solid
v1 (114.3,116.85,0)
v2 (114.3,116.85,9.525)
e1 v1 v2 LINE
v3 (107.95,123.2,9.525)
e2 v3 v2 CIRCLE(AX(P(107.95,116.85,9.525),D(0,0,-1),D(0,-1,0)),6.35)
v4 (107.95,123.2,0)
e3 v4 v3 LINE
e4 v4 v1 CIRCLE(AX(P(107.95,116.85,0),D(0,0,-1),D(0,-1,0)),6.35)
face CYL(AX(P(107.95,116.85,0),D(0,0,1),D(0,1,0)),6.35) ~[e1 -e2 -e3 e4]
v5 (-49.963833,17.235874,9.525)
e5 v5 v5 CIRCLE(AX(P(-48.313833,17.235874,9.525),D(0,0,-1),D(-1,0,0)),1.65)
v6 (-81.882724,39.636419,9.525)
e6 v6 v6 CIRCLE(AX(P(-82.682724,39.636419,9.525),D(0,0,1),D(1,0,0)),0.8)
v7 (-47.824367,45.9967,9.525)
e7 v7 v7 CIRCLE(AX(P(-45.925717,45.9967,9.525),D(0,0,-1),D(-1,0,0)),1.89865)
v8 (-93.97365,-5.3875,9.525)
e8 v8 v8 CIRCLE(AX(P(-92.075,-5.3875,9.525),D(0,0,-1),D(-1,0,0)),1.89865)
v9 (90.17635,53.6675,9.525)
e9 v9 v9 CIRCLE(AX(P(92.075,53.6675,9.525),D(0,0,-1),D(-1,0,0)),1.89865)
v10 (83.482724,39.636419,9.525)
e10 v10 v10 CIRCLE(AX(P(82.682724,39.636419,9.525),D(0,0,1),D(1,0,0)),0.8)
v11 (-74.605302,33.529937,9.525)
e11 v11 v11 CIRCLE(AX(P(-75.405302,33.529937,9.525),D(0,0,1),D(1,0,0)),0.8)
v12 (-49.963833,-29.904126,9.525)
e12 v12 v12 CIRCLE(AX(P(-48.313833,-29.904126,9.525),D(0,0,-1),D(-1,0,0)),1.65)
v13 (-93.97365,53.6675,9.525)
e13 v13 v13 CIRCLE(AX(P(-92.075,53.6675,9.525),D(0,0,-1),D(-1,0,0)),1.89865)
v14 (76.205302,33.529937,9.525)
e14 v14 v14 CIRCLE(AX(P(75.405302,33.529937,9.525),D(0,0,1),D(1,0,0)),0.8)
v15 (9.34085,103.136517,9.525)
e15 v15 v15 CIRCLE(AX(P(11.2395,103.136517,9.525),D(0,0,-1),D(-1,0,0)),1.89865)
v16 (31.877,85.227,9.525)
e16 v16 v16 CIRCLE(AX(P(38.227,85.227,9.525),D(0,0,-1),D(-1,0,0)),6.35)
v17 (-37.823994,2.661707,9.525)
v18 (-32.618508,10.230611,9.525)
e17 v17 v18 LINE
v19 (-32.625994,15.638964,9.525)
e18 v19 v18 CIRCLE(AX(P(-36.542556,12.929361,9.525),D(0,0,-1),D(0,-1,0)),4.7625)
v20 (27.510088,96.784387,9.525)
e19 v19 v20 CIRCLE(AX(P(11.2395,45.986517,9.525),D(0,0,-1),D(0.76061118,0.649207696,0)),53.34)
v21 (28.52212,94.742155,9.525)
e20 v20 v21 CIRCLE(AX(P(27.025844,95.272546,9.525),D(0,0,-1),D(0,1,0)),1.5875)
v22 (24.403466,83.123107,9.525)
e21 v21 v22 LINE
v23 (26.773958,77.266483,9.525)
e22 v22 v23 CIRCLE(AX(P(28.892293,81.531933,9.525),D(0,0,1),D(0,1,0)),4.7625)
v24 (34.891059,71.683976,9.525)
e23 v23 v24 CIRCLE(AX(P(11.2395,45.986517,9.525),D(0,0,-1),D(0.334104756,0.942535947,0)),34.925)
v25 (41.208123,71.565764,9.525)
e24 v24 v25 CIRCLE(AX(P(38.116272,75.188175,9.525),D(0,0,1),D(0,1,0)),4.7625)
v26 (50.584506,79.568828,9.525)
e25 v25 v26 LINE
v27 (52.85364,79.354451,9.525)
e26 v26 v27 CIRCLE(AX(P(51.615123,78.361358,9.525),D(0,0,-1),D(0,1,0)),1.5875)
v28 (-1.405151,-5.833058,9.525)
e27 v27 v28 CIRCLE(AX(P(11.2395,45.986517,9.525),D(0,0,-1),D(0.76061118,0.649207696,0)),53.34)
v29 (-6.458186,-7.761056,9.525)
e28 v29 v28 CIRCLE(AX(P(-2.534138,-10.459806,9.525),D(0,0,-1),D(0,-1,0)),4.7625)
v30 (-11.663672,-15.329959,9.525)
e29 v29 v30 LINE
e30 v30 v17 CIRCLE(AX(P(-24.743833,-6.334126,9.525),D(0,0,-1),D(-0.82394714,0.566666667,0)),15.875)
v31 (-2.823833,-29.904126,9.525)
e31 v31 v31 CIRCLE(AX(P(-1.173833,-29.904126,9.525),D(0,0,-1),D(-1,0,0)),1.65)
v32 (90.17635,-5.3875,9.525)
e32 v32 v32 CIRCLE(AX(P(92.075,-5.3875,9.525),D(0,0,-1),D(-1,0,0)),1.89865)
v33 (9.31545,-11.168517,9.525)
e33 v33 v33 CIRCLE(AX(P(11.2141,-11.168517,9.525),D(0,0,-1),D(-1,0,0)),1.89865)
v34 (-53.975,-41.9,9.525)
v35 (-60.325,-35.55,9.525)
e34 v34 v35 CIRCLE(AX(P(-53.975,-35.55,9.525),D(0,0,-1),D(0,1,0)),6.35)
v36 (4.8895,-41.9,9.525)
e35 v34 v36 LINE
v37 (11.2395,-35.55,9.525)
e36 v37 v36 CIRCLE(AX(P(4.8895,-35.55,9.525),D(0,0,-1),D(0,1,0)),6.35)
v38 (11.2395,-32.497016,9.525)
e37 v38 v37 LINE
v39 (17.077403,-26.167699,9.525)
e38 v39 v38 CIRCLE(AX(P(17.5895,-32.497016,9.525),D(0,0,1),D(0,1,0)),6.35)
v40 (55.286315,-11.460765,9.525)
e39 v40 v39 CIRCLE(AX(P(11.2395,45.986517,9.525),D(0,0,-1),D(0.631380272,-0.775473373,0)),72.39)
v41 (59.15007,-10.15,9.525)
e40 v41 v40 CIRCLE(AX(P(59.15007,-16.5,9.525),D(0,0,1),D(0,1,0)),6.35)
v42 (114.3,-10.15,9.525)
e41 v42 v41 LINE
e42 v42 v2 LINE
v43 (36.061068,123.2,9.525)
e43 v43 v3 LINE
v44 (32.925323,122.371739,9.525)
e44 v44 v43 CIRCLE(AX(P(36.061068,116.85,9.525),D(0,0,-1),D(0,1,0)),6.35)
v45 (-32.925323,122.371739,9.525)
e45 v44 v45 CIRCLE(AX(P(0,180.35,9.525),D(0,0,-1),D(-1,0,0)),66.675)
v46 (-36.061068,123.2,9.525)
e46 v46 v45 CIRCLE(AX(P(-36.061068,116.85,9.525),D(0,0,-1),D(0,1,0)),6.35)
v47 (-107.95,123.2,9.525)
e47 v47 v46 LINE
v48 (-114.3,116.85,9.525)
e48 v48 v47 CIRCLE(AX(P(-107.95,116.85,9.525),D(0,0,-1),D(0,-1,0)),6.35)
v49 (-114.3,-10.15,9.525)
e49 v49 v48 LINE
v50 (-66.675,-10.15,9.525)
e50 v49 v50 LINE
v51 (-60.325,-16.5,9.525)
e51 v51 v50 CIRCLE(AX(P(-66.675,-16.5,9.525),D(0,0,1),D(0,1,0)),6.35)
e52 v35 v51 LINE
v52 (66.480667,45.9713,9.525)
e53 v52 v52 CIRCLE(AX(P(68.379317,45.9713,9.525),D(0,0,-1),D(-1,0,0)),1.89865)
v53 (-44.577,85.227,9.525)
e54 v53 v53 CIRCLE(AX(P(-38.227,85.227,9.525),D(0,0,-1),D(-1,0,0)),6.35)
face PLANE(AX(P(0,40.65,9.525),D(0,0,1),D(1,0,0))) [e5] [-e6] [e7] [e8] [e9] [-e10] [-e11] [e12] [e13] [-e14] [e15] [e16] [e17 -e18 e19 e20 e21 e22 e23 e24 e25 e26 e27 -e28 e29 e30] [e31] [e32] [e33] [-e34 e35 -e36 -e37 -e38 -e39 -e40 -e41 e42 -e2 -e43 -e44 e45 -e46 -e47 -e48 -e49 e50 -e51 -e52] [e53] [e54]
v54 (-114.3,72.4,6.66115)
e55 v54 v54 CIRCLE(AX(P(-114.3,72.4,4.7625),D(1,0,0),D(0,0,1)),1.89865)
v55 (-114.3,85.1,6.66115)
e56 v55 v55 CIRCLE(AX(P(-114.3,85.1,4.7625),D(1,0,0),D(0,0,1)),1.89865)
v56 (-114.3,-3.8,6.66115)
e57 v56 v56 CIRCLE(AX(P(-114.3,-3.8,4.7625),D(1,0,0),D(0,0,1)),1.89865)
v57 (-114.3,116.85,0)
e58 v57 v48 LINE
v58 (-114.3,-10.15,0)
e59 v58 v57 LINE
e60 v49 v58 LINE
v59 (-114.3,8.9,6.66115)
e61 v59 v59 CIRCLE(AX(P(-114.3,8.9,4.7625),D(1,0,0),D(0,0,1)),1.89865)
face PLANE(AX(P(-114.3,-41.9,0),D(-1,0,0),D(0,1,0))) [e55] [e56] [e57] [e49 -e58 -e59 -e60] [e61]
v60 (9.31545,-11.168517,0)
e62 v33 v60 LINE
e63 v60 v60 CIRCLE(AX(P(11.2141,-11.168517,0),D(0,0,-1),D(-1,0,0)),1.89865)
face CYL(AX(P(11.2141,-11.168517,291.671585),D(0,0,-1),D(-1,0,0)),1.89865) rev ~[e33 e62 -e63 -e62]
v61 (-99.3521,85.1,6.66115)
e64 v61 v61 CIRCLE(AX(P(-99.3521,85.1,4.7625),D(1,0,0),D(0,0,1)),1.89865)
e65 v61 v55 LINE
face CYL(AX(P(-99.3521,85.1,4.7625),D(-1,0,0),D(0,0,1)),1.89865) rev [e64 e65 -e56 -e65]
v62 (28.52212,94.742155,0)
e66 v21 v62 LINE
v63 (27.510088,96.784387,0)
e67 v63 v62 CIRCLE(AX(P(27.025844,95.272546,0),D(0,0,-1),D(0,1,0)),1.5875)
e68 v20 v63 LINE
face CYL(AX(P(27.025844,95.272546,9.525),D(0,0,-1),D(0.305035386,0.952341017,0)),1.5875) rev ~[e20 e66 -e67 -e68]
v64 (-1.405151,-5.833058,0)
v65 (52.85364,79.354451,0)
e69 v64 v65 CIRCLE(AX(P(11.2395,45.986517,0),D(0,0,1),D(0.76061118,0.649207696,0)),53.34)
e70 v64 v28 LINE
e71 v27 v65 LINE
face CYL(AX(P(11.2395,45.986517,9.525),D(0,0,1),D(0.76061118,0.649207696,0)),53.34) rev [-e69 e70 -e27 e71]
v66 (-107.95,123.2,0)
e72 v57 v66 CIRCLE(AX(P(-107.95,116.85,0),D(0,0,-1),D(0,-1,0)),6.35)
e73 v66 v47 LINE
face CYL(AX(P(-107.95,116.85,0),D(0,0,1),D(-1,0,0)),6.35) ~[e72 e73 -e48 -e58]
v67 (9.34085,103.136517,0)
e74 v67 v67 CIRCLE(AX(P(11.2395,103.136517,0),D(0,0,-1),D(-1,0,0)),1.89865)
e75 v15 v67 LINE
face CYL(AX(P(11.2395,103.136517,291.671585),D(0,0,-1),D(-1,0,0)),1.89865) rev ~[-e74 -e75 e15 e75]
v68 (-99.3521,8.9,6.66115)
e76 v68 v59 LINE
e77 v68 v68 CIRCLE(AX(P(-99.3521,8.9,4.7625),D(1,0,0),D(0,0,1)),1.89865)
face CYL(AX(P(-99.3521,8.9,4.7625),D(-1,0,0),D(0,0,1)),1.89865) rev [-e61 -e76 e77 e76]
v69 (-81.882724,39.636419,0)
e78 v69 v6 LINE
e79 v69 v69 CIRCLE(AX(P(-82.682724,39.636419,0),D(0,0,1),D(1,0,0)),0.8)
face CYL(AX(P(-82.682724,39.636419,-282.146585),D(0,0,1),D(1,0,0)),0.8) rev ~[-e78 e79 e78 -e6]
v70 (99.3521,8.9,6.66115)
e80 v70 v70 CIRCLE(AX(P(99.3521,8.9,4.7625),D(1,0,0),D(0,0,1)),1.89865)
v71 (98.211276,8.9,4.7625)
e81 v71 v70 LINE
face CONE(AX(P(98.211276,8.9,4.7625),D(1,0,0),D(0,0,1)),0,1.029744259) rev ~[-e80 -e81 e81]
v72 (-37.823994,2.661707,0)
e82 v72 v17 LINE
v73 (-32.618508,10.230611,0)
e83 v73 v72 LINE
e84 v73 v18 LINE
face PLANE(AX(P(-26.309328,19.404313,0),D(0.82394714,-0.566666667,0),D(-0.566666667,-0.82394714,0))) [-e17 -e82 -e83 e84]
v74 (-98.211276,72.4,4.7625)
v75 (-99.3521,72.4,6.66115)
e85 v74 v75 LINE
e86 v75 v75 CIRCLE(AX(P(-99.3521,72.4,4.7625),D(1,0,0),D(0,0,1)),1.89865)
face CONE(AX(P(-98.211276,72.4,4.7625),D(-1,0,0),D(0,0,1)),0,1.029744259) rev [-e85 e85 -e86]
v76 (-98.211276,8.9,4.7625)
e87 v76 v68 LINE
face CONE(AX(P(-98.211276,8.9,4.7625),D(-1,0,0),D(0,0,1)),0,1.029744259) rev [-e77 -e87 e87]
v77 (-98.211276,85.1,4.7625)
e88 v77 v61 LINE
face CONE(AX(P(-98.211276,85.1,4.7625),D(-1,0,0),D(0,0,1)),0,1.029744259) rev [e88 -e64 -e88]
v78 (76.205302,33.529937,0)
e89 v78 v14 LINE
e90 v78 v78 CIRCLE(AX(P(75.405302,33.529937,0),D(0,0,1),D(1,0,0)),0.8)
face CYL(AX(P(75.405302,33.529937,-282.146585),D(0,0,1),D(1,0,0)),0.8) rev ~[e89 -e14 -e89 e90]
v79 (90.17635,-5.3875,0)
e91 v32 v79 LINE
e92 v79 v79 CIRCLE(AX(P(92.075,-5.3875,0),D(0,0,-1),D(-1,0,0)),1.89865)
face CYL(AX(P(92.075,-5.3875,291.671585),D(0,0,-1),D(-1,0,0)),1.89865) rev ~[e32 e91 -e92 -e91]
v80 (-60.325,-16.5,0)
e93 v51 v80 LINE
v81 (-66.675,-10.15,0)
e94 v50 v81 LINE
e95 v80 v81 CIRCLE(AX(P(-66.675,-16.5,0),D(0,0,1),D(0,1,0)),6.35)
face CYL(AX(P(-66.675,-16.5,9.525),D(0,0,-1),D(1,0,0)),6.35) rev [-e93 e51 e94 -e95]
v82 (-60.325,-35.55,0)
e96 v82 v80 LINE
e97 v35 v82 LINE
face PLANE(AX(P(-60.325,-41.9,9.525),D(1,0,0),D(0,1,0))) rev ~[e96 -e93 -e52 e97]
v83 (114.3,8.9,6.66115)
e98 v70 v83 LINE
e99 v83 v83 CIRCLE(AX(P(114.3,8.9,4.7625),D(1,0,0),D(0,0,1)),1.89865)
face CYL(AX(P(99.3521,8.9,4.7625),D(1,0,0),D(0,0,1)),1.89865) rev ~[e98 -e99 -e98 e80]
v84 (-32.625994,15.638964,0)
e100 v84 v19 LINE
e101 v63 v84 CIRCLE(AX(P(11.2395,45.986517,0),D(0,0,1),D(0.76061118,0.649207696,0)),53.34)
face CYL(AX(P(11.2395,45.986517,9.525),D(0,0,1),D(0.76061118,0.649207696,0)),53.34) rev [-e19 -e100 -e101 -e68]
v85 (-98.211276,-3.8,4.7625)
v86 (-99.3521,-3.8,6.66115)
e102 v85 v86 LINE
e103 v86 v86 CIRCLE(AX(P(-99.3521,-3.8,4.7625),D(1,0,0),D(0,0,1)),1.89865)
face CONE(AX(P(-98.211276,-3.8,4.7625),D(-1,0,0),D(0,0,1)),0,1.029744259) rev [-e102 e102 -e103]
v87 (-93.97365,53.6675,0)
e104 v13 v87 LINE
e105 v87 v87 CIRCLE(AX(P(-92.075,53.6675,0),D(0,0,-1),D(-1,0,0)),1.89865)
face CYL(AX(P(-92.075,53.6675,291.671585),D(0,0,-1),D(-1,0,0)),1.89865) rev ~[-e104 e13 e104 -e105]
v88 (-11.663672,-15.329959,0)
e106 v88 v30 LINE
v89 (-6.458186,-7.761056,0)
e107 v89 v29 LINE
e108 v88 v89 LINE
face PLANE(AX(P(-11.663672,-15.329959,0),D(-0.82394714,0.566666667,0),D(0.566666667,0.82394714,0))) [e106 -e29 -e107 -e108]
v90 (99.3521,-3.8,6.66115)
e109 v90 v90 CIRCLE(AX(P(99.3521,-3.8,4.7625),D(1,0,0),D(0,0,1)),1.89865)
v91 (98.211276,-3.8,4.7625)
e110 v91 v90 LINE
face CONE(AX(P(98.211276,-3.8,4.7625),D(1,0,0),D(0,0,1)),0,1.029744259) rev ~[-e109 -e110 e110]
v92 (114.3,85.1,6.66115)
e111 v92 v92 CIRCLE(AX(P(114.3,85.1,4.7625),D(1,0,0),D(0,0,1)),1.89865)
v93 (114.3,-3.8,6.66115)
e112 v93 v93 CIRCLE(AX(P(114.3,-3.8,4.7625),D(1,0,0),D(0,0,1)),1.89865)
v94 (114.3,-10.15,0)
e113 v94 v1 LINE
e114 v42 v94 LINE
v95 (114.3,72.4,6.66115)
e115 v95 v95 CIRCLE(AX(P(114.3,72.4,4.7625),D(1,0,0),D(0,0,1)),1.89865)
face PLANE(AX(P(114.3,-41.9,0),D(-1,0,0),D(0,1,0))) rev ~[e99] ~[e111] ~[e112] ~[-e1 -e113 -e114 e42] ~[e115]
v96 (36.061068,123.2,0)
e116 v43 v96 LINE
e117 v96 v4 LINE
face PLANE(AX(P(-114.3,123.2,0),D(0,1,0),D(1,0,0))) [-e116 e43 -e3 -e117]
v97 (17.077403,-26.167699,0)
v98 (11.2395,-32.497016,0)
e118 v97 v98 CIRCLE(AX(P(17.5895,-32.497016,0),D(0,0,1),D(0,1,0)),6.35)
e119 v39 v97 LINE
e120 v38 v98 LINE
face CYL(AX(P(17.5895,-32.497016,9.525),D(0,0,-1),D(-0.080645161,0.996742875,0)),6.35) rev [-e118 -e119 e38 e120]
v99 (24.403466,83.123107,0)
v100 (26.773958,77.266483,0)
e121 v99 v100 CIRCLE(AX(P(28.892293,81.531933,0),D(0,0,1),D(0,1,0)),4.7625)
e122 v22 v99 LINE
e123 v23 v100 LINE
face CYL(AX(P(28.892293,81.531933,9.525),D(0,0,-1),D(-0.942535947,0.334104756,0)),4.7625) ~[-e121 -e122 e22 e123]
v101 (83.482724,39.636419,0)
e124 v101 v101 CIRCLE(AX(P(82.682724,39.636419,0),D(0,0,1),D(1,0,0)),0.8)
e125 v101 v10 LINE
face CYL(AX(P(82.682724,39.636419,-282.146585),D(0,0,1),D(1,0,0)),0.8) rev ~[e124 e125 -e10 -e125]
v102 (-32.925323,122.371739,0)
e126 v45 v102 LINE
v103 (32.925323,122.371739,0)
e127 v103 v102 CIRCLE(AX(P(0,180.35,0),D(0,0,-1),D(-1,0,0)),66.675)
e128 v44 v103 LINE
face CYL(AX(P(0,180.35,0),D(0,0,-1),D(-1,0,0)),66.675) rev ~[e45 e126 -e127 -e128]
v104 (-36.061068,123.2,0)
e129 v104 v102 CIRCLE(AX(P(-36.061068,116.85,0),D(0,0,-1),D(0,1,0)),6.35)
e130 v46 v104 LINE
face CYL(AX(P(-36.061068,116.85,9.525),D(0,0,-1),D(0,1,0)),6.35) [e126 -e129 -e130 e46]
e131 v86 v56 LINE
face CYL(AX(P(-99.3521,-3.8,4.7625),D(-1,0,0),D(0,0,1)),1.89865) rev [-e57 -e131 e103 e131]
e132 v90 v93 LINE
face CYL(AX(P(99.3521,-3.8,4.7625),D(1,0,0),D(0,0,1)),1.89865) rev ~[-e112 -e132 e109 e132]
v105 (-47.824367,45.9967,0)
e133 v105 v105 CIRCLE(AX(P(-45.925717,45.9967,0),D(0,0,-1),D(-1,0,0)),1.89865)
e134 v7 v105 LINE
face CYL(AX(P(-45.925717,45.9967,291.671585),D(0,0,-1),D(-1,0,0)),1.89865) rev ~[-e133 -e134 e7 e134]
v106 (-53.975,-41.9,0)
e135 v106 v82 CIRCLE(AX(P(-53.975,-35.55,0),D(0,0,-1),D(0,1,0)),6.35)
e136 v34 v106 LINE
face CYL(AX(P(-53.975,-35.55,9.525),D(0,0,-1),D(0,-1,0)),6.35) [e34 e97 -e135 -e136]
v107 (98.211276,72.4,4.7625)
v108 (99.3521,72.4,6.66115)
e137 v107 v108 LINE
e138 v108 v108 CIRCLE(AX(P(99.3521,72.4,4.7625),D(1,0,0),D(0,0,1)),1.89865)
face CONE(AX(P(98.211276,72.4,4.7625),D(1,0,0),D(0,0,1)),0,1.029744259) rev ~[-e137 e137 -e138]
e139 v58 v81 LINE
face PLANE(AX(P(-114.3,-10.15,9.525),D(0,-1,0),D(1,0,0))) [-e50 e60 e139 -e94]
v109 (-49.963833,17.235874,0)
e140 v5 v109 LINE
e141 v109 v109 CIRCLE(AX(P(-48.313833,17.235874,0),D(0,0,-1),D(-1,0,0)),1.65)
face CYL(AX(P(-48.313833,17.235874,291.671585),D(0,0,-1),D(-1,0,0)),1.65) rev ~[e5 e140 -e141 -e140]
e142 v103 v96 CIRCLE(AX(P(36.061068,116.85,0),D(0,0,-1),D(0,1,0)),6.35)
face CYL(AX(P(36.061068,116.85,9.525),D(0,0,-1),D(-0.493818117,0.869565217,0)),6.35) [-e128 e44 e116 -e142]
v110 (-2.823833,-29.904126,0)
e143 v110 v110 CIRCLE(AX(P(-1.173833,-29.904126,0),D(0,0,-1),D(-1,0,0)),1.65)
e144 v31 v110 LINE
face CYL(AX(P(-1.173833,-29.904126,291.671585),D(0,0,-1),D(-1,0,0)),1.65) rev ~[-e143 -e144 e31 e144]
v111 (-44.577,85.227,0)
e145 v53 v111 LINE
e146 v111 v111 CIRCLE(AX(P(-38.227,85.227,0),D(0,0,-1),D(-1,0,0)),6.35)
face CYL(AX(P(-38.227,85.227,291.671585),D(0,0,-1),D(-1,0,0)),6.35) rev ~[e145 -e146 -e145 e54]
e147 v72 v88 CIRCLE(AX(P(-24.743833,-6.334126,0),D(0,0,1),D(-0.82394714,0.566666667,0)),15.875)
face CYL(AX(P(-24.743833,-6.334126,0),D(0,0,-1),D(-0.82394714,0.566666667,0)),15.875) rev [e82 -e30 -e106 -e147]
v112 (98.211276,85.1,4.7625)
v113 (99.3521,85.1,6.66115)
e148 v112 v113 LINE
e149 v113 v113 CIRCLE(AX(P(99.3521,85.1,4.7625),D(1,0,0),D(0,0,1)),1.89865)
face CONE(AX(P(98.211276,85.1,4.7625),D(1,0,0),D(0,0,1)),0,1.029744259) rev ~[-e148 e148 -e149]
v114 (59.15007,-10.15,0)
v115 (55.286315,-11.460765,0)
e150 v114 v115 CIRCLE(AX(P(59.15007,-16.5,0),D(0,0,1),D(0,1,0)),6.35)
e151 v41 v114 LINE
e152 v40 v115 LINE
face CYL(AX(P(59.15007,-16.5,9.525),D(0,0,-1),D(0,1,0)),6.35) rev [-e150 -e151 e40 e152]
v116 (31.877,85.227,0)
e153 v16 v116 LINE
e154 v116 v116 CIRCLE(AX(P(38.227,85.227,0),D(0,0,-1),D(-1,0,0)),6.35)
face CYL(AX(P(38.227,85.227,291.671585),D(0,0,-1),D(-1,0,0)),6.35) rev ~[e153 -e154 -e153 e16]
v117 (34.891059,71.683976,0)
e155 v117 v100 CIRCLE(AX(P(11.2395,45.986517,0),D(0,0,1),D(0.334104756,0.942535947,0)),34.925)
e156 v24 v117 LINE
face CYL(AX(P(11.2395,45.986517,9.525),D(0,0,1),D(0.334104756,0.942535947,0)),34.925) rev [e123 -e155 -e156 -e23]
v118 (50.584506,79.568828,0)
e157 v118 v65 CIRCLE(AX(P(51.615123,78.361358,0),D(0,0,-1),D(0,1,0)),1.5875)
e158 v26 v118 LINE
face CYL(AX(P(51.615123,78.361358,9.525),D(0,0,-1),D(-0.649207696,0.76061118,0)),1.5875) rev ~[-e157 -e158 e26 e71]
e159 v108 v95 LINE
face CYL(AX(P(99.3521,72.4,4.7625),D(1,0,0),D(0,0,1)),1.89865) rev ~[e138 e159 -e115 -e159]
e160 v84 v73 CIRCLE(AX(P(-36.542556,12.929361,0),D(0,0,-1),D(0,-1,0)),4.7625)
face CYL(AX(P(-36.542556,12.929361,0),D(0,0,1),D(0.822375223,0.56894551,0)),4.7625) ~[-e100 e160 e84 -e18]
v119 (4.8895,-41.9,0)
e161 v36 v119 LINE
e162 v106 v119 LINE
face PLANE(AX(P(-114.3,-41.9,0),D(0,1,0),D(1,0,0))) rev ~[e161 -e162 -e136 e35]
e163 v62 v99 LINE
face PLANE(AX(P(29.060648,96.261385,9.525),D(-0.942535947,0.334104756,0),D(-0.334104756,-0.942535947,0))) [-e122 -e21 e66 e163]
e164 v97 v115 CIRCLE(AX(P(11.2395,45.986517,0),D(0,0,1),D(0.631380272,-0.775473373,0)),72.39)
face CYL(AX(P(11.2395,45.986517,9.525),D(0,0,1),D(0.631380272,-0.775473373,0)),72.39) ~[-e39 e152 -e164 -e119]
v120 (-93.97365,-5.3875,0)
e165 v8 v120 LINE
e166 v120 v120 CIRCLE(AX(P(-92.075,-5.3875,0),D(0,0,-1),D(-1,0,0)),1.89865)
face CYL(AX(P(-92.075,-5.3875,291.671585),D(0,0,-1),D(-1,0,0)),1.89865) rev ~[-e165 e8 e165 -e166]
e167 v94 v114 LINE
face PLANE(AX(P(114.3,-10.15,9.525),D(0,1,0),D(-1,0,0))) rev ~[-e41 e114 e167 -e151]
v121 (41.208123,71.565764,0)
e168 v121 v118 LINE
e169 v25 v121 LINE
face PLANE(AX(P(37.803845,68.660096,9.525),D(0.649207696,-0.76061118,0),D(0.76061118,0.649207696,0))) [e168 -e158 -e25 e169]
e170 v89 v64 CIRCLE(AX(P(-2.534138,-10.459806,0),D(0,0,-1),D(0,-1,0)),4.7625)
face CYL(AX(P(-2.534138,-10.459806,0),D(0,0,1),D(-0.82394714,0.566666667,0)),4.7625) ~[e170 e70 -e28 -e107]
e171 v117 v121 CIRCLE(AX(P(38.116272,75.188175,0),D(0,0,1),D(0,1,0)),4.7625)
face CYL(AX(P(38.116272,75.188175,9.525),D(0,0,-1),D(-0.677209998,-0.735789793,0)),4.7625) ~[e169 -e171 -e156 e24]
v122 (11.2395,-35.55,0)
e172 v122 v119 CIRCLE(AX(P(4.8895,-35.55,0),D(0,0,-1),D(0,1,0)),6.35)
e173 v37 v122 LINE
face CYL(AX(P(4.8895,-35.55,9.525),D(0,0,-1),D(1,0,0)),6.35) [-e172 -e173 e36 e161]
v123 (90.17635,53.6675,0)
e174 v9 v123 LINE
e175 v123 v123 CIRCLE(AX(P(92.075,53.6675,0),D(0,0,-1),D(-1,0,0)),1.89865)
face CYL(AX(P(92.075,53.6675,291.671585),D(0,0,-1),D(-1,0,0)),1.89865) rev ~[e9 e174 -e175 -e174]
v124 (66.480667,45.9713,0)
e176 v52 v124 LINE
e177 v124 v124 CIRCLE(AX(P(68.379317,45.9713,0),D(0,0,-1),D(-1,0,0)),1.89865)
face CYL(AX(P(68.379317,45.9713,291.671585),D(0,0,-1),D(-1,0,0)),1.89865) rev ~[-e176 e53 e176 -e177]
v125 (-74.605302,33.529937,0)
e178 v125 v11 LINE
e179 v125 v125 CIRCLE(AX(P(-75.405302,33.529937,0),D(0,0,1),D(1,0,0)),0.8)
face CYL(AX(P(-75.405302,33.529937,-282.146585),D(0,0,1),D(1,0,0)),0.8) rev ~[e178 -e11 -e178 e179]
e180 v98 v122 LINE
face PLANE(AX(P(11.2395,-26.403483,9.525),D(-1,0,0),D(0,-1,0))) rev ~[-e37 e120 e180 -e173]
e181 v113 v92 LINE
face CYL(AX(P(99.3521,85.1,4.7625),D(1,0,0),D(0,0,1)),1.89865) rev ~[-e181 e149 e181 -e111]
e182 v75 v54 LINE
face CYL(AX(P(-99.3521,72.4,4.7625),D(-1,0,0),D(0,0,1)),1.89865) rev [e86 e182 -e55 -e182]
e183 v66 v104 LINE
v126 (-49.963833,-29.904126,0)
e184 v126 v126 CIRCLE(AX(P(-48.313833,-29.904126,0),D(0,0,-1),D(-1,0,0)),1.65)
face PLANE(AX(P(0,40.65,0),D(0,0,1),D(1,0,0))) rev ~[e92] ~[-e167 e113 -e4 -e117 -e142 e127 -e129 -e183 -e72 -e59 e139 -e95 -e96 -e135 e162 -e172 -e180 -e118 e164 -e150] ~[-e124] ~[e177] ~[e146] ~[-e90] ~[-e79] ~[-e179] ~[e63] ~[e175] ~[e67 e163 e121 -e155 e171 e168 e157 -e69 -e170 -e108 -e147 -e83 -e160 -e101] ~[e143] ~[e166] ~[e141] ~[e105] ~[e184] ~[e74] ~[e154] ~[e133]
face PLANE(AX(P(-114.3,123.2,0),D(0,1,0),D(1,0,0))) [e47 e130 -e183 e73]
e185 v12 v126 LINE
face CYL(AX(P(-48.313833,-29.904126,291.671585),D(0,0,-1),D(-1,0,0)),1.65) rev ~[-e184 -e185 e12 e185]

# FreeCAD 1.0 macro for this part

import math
import FreeCAD as App
import Part
import Sketcher
from FreeCAD import Vector
Q = App.Units.Quantity


def edges_at(feature, points):
    """Names of the edges that pass closest to the given points."""
    edges = feature.Shape.Edges
    near = lambda p: min(range(len(edges)), key=lambda i: edges[i].distToShape(Part.Vertex(*p))[0])
    return sorted({f"Edge{near(p) + 1}" for p in points})


def add_polygon(sketch, points):
    """Adds a closed chain of lines whose ends are joined by coincident constraints."""
    first, n = sketch.GeometryCount, len(points)
    for a, b in zip(points, points[1:] + points[:1]):
        sketch.addGeometry(Part.LineSegment(App.Vector(*a, 0), App.Vector(*b, 0)), False)
    for i in range(n):
        sketch.addConstraint(Sketcher.Constraint("Coincident", first + i, 2, first + (i + 1) % n, 1))

doc = App.newDocument("Part")
body = doc.addObject("PartDesign::Body", "Body")

# Sketch on XY plane
sketch1 = body.newObject("Sketcher::SketchObject", "Sketch")
sketch1.AttachmentSupport = (doc.getObject("XY_Plane"), [""])
sketch1.MapMode = "FlatFace"
add_polygon(sketch1, [(-114, 123), (-114, -42), (114, -42), (114, 123)])  # lines 0-3
sketch1.addConstraint(Sketcher.Constraint("Vertical", 0))
sketch1.addConstraint(Sketcher.Constraint("Horizontal", 1))
sketch1.addConstraint(Sketcher.Constraint("Vertical", 2))
sketch1.addConstraint(Sketcher.Constraint("Horizontal", 3))
sketch1.addConstraint(Sketcher.Constraint("DistanceX", 1, 1, 1, 2, Q("9 in")))
sketch1.addConstraint(Sketcher.Constraint("DistanceY", 0, 2, 0, 1, Q("6.5 in")))
sketch1.addConstraint(Sketcher.Constraint("DistanceX", 0, 2, -1, 1, Q("4.5 in")))
sketch1.addConstraint(Sketcher.Constraint("DistanceY", 0, 2, -1, 1, Q("41.9 mm")))
pad1 = body.newObject("PartDesign::Pad", "Pad")
pad1.Profile = sketch1
pad1.Length = Q("0.375 in")

# Sketch on XY plane
sketch2 = body.newObject("Sketcher::SketchObject", "Sketch001")
sketch2.AttachmentSupport = (doc.getObject("XY_Plane"), [""])
sketch2.MapMode = "FlatFace"
sketch2.AttachmentOffset = App.Placement(Vector(0, 0, 0.375 * 25.4), App.Rotation())
sketch2.addGeometry(Part.Circle(Vector(-38, 85, 0), Vector(0, 0, 1), 6), False)
sketch2.addGeometry(Part.Circle(Vector(38, 85, 0), Vector(0, 0, 1), 6), False)
sketch2.addConstraint(Sketcher.Constraint("Equal", 0, 1))
sketch2.addConstraint(Sketcher.Constraint("Symmetric", 0, 3, 1, 3, -2))
sketch2.addConstraint(Sketcher.Constraint("Diameter", 0, Q("0.5 in")))
sketch2.addConstraint(Sketcher.Constraint("DistanceX", 0, 3, 1, 3, Q("3.01 in")))
sketch2.addConstraint(Sketcher.Constraint("DistanceY", -1, 1, 0, 3, Q("85.227 mm")))
doc.recompute()
hole = body.newObject("PartDesign::Hole", "Hole")
hole.Profile = sketch2
hole.ThreadType = "None"
hole.Diameter = Q("0.5 in")
hole.DepthType = "ThroughAll"

# Sketch on XY plane
sketch3 = body.newObject("Sketcher::SketchObject", "Sketch002")
sketch3.AttachmentSupport = (doc.getObject("XY_Plane"), [""])
sketch3.MapMode = "FlatFace"
sketch3.AttachmentOffset = App.Placement(Vector(0, 0, 0.375 * 25.4), App.Rotation())
sketch3.addGeometry(Part.LineSegment(Vector(23, 79, 0), Vector(29, 96, 0)), False)
sketch3.addGeometry(Part.ArcOfCircle(Part.Circle(Vector(11, 46, 0), Vector(0, 0, 1), 53), math.radians(70), math.radians(400)), False)
sketch3.addGeometry(Part.LineSegment(Vector(52, 81, 0), Vector(38, 69, 0)), False)
sketch3.addGeometry(Part.ArcOfCircle(Part.Circle(Vector(11, 46, 0), Vector(0, 0, 1), 35), math.radians(40), math.radians(70)), False)
sketch3.addConstraint(Sketcher.Constraint("Coincident", 0, 2, 1, 1))
sketch3.addConstraint(Sketcher.Constraint("Coincident", 1, 2, 2, 1))
sketch3.addConstraint(Sketcher.Constraint("Coincident", 2, 2, 3, 1))
sketch3.addConstraint(Sketcher.Constraint("Coincident", 3, 2, 0, 1))
sketch3.addConstraint(Sketcher.Constraint("Coincident", 3, 3, 1, 3))
sketch3.addConstraint(Sketcher.Constraint("Radius", 1, Q("2.1 in")))
sketch3.addConstraint(Sketcher.Constraint("Radius", 3, Q("1.375 in")))
sketch3.addConstraint(Sketcher.Constraint("DistanceX", -1, 1, 1, 3, Q("0.4425 in")))
sketch3.addConstraint(Sketcher.Constraint("DistanceX", -1, 1, 1, 2, Q("51.8105 mm")))
sketch3.addConstraint(Sketcher.Constraint("DistanceY", 3, 2, 0, 2, Q("17.356799 mm")))
sketch3.addConstraint(Sketcher.Constraint("DistanceX", -1, 1, 3, 2, Q("22.908109 mm")))
sketch3.addConstraint(Sketcher.Constraint("DistanceY", 2, 2, 1, 2, Q("11.95516 mm")))
sketch3.addConstraint(Sketcher.Constraint("DistanceY", -1, 1, 1, 3, Q("45.986517 mm")))
pocket1 = body.newObject("PartDesign::Pocket", "Pocket")
pocket1.Profile = sketch3
pocket1.Type = "ThroughAll"

# Sketch on XY plane
sketch4 = body.newObject("Sketcher::SketchObject", "Sketch003")
sketch4.AttachmentSupport = (doc.getObject("XY_Plane"), [""])
sketch4.MapMode = "FlatFace"
sketch4.addGeometry(Part.LineSegment(Vector(-38, 3, 0), Vector(-26, 19, 0)), False)
sketch4.addGeometry(Part.ArcOfCircle(Part.Circle(Vector(-13, 10, 0), Vector(0, 0, 1), 16), math.radians(-35), math.radians(145)), False)
sketch4.addGeometry(Part.LineSegment(Vector(0, 1, 0), Vector(-12, -15, 0)), False)
sketch4.addGeometry(Part.ArcOfCircle(Part.Circle(Vector(-25, -6, 0), Vector(0, 0, 1), 16), math.radians(145), math.radians(325)), False)
sketch4.addConstraint(Sketcher.Constraint("Tangent", 0, 2, 1, 2))
sketch4.addConstraint(Sketcher.Constraint("Tangent", 1, 1, 2, 1))
sketch4.addConstraint(Sketcher.Constraint("Tangent", 2, 2, 3, 2))
sketch4.addConstraint(Sketcher.Constraint("Tangent", 3, 1, 0, 1))
sketch4.addConstraint(Sketcher.Constraint("Equal", 1, 3))
sketch4.addConstraint(Sketcher.Constraint("Radius", 1, Q("0.625 in")))
sketch4.addConstraint(Sketcher.Constraint("Distance", 0, Q("0.8 in")))
sketch4.addConstraint(Sketcher.Constraint("DistanceY", -1, 1, 1, 3, Q("10.40848 mm")))
sketch4.addConstraint(Sketcher.Constraint("DistanceY", 2, 2, -1, 1, Q("15.329959 mm")))
sketch4.addConstraint(Sketcher.Constraint("DistanceX", 1, 3, -1, 1, Q("13.229167 mm")))
pocket2 = body.newObject("PartDesign::Pocket", "Pocket001")
pocket2.Profile = sketch4
pocket2.Type = "ThroughAll"
pocket2.Reversed = True

# Sketch on XY plane
sketch5 = body.newObject("Sketcher::SketchObject", "Sketch004")
sketch5.AttachmentSupport = (doc.getObject("XY_Plane"), [""])
sketch5.MapMode = "FlatFace"
sketch5.addGeometry(Part.Circle(Vector(0, 180, 0), Vector(0, 0, 1), 67), False)
sketch5.addConstraint(Sketcher.Constraint("PointOnObject", 0, 3, -2))
sketch5.addConstraint(Sketcher.Constraint("Diameter", 0, Q("5.25 in")))
sketch5.addConstraint(Sketcher.Constraint("DistanceY", -1, 1, 0, 3, Q("180.35 mm")))
pocket3 = body.newObject("PartDesign::Pocket", "Pocket002")
pocket3.Profile = sketch5
pocket3.Type = "ThroughAll"
pocket3.Reversed = True

# Sketch on XY plane
sketch6 = body.newObject("Sketcher::SketchObject", "Sketch005")
sketch6.AttachmentSupport = (doc.getObject("XY_Plane"), [""])
sketch6.MapMode = "FlatFace"
sketch6.AttachmentOffset = App.Placement(Vector(0, 0, 0.375 * 25.4), App.Rotation())
sketch6.addGeometry(Part.LineSegment(Vector(114, -42, 0), Vector(114, -10, 0)), False)  # 0
sketch6.addGeometry(Part.LineSegment(Vector(114, -10, 0), Vector(57, -10, 0)), False)  # 1
sketch6.addGeometry(Part.ArcOfCircle(Part.Circle(Vector(11, 46, 0), Vector(0, 0, 1), 72), math.radians(-90), math.radians(-51)), False)  # 2
sketch6.addGeometry(Part.LineSegment(Vector(11, -26, 0), Vector(11, -42, 0)), False)  # 3
sketch6.addGeometry(Part.LineSegment(Vector(11, -42, 0), Vector(114, -42, 0)), False)  # 4
add_polygon(sketch6, [(-114, -10), (-114, -42), (-60, -42), (-60, -10)])  # lines 5-8
sketch6.addConstraint(Sketcher.Constraint("Coincident", 0, 2, 1, 1))
sketch6.addConstraint(Sketcher.Constraint("Coincident", 1, 2, 2, 2))
sketch6.addConstraint(Sketcher.Constraint("Coincident", 2, 1, 3, 1))
sketch6.addConstraint(Sketcher.Constraint("Coincident", 3, 2, 4, 1))
sketch6.addConstraint(Sketcher.Constraint("Coincident", 4, 2, 0, 1))
sketch6.addConstraint(Sketcher.Constraint("Vertical", 0))
sketch6.addConstraint(Sketcher.Constraint("Horizontal", 1))
sketch6.addConstraint(Sketcher.Constraint("Vertical", 3))
sketch6.addConstraint(Sketcher.Constraint("Horizontal", 4))
sketch6.addConstraint(Sketcher.Constraint("Vertical", 5))
sketch6.addConstraint(Sketcher.Constraint("Horizontal", 6))
sketch6.addConstraint(Sketcher.Constraint("Vertical", 7))
sketch6.addConstraint(Sketcher.Constraint("Horizontal", 8))
sketch6.addConstraint(Sketcher.Constraint("Symmetric", 4, 2, 5, 2, -2))
sketch6.addConstraint(Sketcher.Constraint("Horizontal", 1, 2, 7, 2))
sketch6.addConstraint(Sketcher.Constraint("Radius", 2, Q("2.85 in")))
sketch6.addConstraint(Sketcher.Constraint("DistanceX", 5, 2, 4, 2, Q("9 in")))
sketch6.addConstraint(Sketcher.Constraint("DistanceY", 0, 1, 0, 2, Q("1.25 in")))
sketch6.addConstraint(Sketcher.Constraint("DistanceX", 6, 1, 6, 2, Q("2.125 in")))
sketch6.addConstraint(Sketcher.Constraint("DistanceX", 4, 1, 4, 2, Q("4.0575 in")))
sketch6.addConstraint(Sketcher.Constraint("DistanceX", -1, 1, 2, 3, Q("0.4425 in")))
sketch6.addConstraint(Sketcher.Constraint("DistanceY", 0, 2, -1, 1, Q("10.15 mm")))
sketch6.addConstraint(Sketcher.Constraint("DistanceX", 1, 2, 1, 1, Q("57.354882 mm")))
pocket4 = body.newObject("PartDesign::Pocket", "Pocket003")
pocket4.Profile = sketch6
pocket4.Type = "ThroughAll"
doc.recompute()

fillet = body.newObject("PartDesign::Fillet", "Fillet")
fillet.Base = (pocket4, edges_at(pocket4, [
    (22.908, 78.905, 4.763),
    (37.804, 68.66, 4.763),
    (-4.537, -4.967, 4.763),
    (-30.697, 13.025, 4.763),
]))
fillet.Radius = Q("0.1875 in")
doc.recompute()

fillet2 = body.newObject("PartDesign::Fillet", "Fillet001")
fillet2.Base = (fillet, edges_at(fillet, [
    (-34.343, 123.2, 4.763),
    (34.343, 123.2, 4.763),
    (-114.3, 123.2, 4.763),
    (114.3, 123.2, 4.763),
    (11.239, -41.9, 4.763),
    (11.239, -26.403, 4.763),
    (56.945, -10.15, 4.763),
    (-60.325, -10.15, 4.763),
    (-60.325, -41.9, 4.763),
]))
fillet2.Radius = Q("0.25 in")

# Sketch on XZ plane
sketch7 = body.newObject("Sketcher::SketchObject", "Sketch006")
sketch7.AttachmentSupport = (doc.getObject("XZ_Plane"), [""])
sketch7.MapMode = "FlatFace"
sketch7.AttachmentOffset = App.Placement(Vector(0, 0, -85.1), App.Rotation())
add_polygon(sketch7, [(-98.2, 4.8), (-114.3, 4.8), (-114.3, 6.7), (-99.4, 6.7)])  # lines 0-3
sketch7.addGeometry(Part.LineSegment(Vector(-114.3, 4.8, 0), Vector(-98.2, 4.8, 0)), True)  # axis
sketch7.addConstraint(Sketcher.Constraint("Horizontal", 0))
sketch7.addConstraint(Sketcher.Constraint("Vertical", 1))
sketch7.addConstraint(Sketcher.Constraint("Horizontal", 2))
sketch7.addConstraint(Sketcher.Constraint("Horizontal", 4))
sketch7.addConstraint(Sketcher.Constraint("Coincident", 4, 1, 0, 2))
sketch7.addConstraint(Sketcher.Constraint("Equal", 0, 4))
sketch7.addConstraint(Sketcher.Constraint("Angle", 3, Q("-59 deg")))
sketch7.addConstraint(Sketcher.Constraint("DistanceX", 0, 2, -1, 1, Q("4.5 in")))
sketch7.addConstraint(Sketcher.Constraint("DistanceX", 2, 1, 2, 2, Q("0.5885 in")))
sketch7.addConstraint(Sketcher.Constraint("DistanceY", -1, 1, 0, 2, Q("0.1875 in")))
sketch7.addConstraint(Sketcher.Constraint("DistanceY", 1, 1, 1, 2, Q("1.89865 mm")))
groove = body.newObject("PartDesign::Groove", "Groove")
groove.Profile = sketch7
groove.ReferenceAxis = (sketch7, ["Axis0"])
groove.Angle = 360
doc.recompute()

linearpattern = body.newObject("PartDesign::LinearPattern", "LinearPattern")
linearpattern.Originals = [groove]
linearpattern.Direction = (doc.getObject("Y_Axis"), [""])
linearpattern.Mode = "offset"
linearpattern.Offset = Q("0.5 in")
linearpattern.Occurrences = 2
linearpattern.Reversed = True
body.Tip = linearpattern
doc.recompute()

linearpattern2 = body.newObject("PartDesign::LinearPattern", "LinearPattern001")
linearpattern2.Originals = [groove]
linearpattern2.Direction = (doc.getObject("Y_Axis"), [""])
linearpattern2.Mode = "offset"
linearpattern2.Offset = Q("3 in")
linearpattern2.Occurrences = 2
linearpattern2.Reversed = True
body.Tip = linearpattern2
doc.recompute()

linearpattern3 = body.newObject("PartDesign::LinearPattern", "LinearPattern002")
linearpattern3.Originals = [groove]
linearpattern3.Direction = (doc.getObject("Y_Axis"), [""])
linearpattern3.Mode = "offset"
linearpattern3.Offset = Q("3.5 in")
linearpattern3.Occurrences = 2
linearpattern3.Reversed = True
body.Tip = linearpattern3
doc.recompute()

mirrored = body.newObject("PartDesign::Mirrored", "Mirrored")
mirrored.Originals = [groove]
mirrored.MirrorPlane = (doc.getObject("YZ_Plane"), [""])
body.Tip = mirrored

# Sketch on XZ plane
sketch8 = body.newObject("Sketcher::SketchObject", "Sketch007")
sketch8.AttachmentSupport = (doc.getObject("XZ_Plane"), [""])
sketch8.MapMode = "FlatFace"
sketch8.AttachmentOffset = App.Placement(Vector(0, 0, -72.4), App.Rotation())
add_polygon(sketch8, [(114.3, 4.8), (98.2, 4.8), (99.4, 6.7), (114.3, 6.7)])  # lines 0-3
sketch8.addGeometry(Part.LineSegment(Vector(98.2, 4.8, 0), Vector(114.3, 4.8, 0)), True)  # axis
sketch8.addConstraint(Sketcher.Constraint("Horizontal", 0))
sketch8.addConstraint(Sketcher.Constraint("Horizontal", 2))
sketch8.addConstraint(Sketcher.Constraint("Vertical", 3))
sketch8.addConstraint(Sketcher.Constraint("Horizontal", 4))
sketch8.addConstraint(Sketcher.Constraint("Coincident", 4, 1, 0, 2))
sketch8.addConstraint(Sketcher.Constraint("Vertical", 2, 2, 4, 2))
sketch8.addConstraint(Sketcher.Constraint("Angle", 1, Q("59 deg")))
sketch8.addConstraint(Sketcher.Constraint("DistanceX", -1, 1, 2, 2, Q("4.5 in")))
sketch8.addConstraint(Sketcher.Constraint("DistanceX", 2, 1, 2, 2, Q("0.5885 in")))
sketch8.addConstraint(Sketcher.Constraint("DistanceY", -1, 1, 0, 2, Q("0.1875 in")))
sketch8.addConstraint(Sketcher.Constraint("DistanceY", 3, 2, 3, 1, Q("1.89865 mm")))
groove2 = body.newObject("PartDesign::Groove", "Groove001")
groove2.Profile = sketch8
groove2.ReferenceAxis = (sketch8, ["Axis0"])
groove2.Angle = 360

# Sketch on XZ plane
sketch9 = body.newObject("Sketcher::SketchObject", "Sketch008")
sketch9.AttachmentSupport = (doc.getObject("XZ_Plane"), [""])
sketch9.MapMode = "FlatFace"
sketch9.AttachmentOffset = App.Placement(Vector(0, 0, -8.9), App.Rotation())
add_polygon(sketch9, [(114.3, 4.8), (98.2, 4.8), (99.4, 6.7), (114.3, 6.7)])  # lines 0-3
sketch9.addGeometry(Part.LineSegment(Vector(98.2, 4.8, 0), Vector(114.3, 4.8, 0)), True)  # axis
sketch9.addConstraint(Sketcher.Constraint("Horizontal", 0))
sketch9.addConstraint(Sketcher.Constraint("Horizontal", 2))
sketch9.addConstraint(Sketcher.Constraint("Vertical", 3))
sketch9.addConstraint(Sketcher.Constraint("Horizontal", 4))
sketch9.addConstraint(Sketcher.Constraint("Coincident", 4, 1, 0, 2))
sketch9.addConstraint(Sketcher.Constraint("Vertical", 2, 2, 4, 2))
sketch9.addConstraint(Sketcher.Constraint("Angle", 1, Q("59 deg")))
sketch9.addConstraint(Sketcher.Constraint("DistanceX", -1, 1, 2, 2, Q("4.5 in")))
sketch9.addConstraint(Sketcher.Constraint("DistanceX", 2, 1, 2, 2, Q("0.5885 in")))
sketch9.addConstraint(Sketcher.Constraint("DistanceY", -1, 1, 0, 2, Q("0.1875 in")))
sketch9.addConstraint(Sketcher.Constraint("DistanceY", 3, 2, 3, 1, Q("1.89865 mm")))
groove3 = body.newObject("PartDesign::Groove", "Groove002")
groove3.Profile = sketch9
groove3.ReferenceAxis = (sketch9, ["Axis0"])
groove3.Angle = 360

# Sketch on XZ plane
sketch10 = body.newObject("Sketcher::SketchObject", "Sketch009")
sketch10.AttachmentSupport = (doc.getObject("XZ_Plane"), [""])
sketch10.MapMode = "FlatFace"
sketch10.AttachmentOffset = App.Placement(Vector(0, 0, 3.8), App.Rotation())
add_polygon(sketch10, [(114.3, 4.8), (98.2, 4.8), (99.4, 6.7), (114.3, 6.7)])  # lines 0-3
sketch10.addGeometry(Part.LineSegment(Vector(98.2, 4.8, 0), Vector(114.3, 4.8, 0)), True)  # axis
sketch10.addConstraint(Sketcher.Constraint("Horizontal", 0))
sketch10.addConstraint(Sketcher.Constraint("Horizontal", 2))
sketch10.addConstraint(Sketcher.Constraint("Vertical", 3))
sketch10.addConstraint(Sketcher.Constraint("Horizontal", 4))
sketch10.addConstraint(Sketcher.Constraint("Coincident", 4, 1, 0, 2))
sketch10.addConstraint(Sketcher.Constraint("Vertical", 2, 2, 4, 2))
sketch10.addConstraint(Sketcher.Constraint("Angle", 1, Q("59 deg")))
sketch10.addConstraint(Sketcher.Constraint("DistanceX", -1, 1, 2, 2, Q("4.5 in")))
sketch10.addConstraint(Sketcher.Constraint("DistanceX", 2, 1, 2, 2, Q("0.5885 in")))
sketch10.addConstraint(Sketcher.Constraint("DistanceY", -1, 1, 0, 2, Q("0.1875 in")))
sketch10.addConstraint(Sketcher.Constraint("DistanceY", 3, 2, 3, 1, Q("1.89865 mm")))
groove4 = body.newObject("PartDesign::Groove", "Groove003")
groove4.Profile = sketch10
groove4.ReferenceAxis = (sketch10, ["Axis0"])
groove4.Angle = 360
doc.recompute()

fillet3 = body.newObject("PartDesign::Fillet", "Fillet002")
fillet3.Base = (groove4, edges_at(groove4, [(51.811, 80.615, 4.763), (29.061, 96.261, 4.763)]))
fillet3.Radius = Q("0.0625 in")

# Sketch on XY plane
sketch11 = body.newObject("Sketcher::SketchObject", "Sketch010")
sketch11.AttachmentSupport = (doc.getObject("XY_Plane"), [""])
sketch11.MapMode = "FlatFace"
sketch11.addGeometry(Part.Circle(Vector(75.4, 33.5, 0), Vector(0, 0, 1), 0.8), False)
sketch11.addGeometry(Part.Circle(Vector(82.7, 39.6, 0), Vector(0, 0, 1), 0.8), False)
sketch11.addGeometry(Part.Circle(Vector(-75.4, 33.5, 0), Vector(0, 0, 1), 0.8), False)
sketch11.addGeometry(Part.Circle(Vector(-82.7, 39.6, 0), Vector(0, 0, 1), 0.8), False)
sketch11.addConstraint(Sketcher.Constraint("Equal", 0, 1))
sketch11.addConstraint(Sketcher.Constraint("Equal", 1, 2))
sketch11.addConstraint(Sketcher.Constraint("Equal", 2, 3))
sketch11.addConstraint(Sketcher.Constraint("Symmetric", 0, 3, 2, 3, -2))
sketch11.addConstraint(Sketcher.Constraint("Symmetric", 1, 3, 3, 3, -2))
sketch11.addConstraint(Sketcher.Constraint("Diameter", 0, Q("1.6 mm")))
sketch11.addConstraint(Sketcher.Constraint("DistanceY", -1, 1, 1, 3, Q("39.636419 mm")))
sketch11.addConstraint(Sketcher.Constraint("DistanceX", 3, 3, 1, 3, Q("165.365449 mm")))
sketch11.addConstraint(Sketcher.Constraint("DistanceX", -1, 1, 0, 3, Q("75.405302 mm")))
sketch11.addConstraint(Sketcher.Constraint("DistanceY", -1, 1, 0, 3, Q("33.529937 mm")))
doc.recompute()
hole2 = body.newObject("PartDesign::Hole", "Hole001")
hole2.Profile = sketch11
hole2.ThreadType = "None"
hole2.Diameter = 1.6
hole2.DepthType = "ThroughAll"
hole2.Reversed = True

# Sketch on XY plane
sketch12 = body.newObject("Sketcher::SketchObject", "Sketch011")
sketch12.AttachmentSupport = (doc.getObject("XY_Plane"), [""])
sketch12.MapMode = "FlatFace"
sketch12.AttachmentOffset = App.Placement(Vector(0, 0, 0.375 * 25.4), App.Rotation())
sketch12.addGeometry(Part.Circle(Vector(-48.3, 17.2, 0), Vector(0, 0, 1), 1.6), False)
sketch12.addGeometry(Part.Circle(Vector(-48.3, -29.9, 0), Vector(0, 0, 1), 1.6), False)
sketch12.addGeometry(Part.Circle(Vector(-1.2, -29.9, 0), Vector(0, 0, 1), 1.6), False)
sketch12.addConstraint(Sketcher.Constraint("Equal", 0, 1))
sketch12.addConstraint(Sketcher.Constraint("Equal", 1, 2))
sketch12.addConstraint(Sketcher.Constraint("Horizontal", 1, 3, 2, 3))
sketch12.addConstraint(Sketcher.Constraint("Vertical", 0, 3, 1, 3))
sketch12.addConstraint(Sketcher.Constraint("Diameter", 0, Q("3.3 mm")))
sketch12.addConstraint(Sketcher.Constraint("DistanceY", 1, 3, 0, 3, Q("47.14 mm")))
sketch12.addConstraint(Sketcher.Constraint("DistanceX", 1, 3, 2, 3, Q("47.14 mm")))
sketch12.addConstraint(Sketcher.Constraint("DistanceX", 0, 3, -1, 1, Q("48.313833 mm")))
sketch12.addConstraint(Sketcher.Constraint("DistanceY", -1, 1, 0, 3, Q("17.235874 mm")))
doc.recompute()
hole3 = body.newObject("PartDesign::Hole", "Hole002")
hole3.Profile = sketch12
hole3.ThreadType = "None"
hole3.Diameter = 3.3
hole3.DepthType = "ThroughAll"

# Sketch on XY plane
sketch13 = body.newObject("Sketcher::SketchObject", "Sketch012")
sketch13.AttachmentSupport = (doc.getObject("XY_Plane"), [""])
sketch13.MapMode = "FlatFace"
sketch13.AttachmentOffset = App.Placement(Vector(0, 0, 0.375 * 25.4), App.Rotation())
sketch13.addGeometry(Part.Circle(Vector(-45.9, 46, 0), Vector(0, 0, 1), 1.9), False)
sketch13.addGeometry(Part.Circle(Vector(11.2, 103.1, 0), Vector(0, 0, 1), 1.9), False)
sketch13.addGeometry(Part.Circle(Vector(68.4, 46, 0), Vector(0, 0, 1), 1.9), False)
sketch13.addGeometry(Part.Circle(Vector(11.2, -11.2, 0), Vector(0, 0, 1), 1.9), False)
sketch13.addGeometry(Part.Circle(Vector(92.1, 53.7, 0), Vector(0, 0, 1), 1.9), False)
sketch13.addGeometry(Part.Circle(Vector(92.1, -5.4, 0), Vector(0, 0, 1), 1.9), False)
sketch13.addGeometry(Part.Circle(Vector(-92.1, -5.4, 0), Vector(0, 0, 1), 1.9), False)
sketch13.addGeometry(Part.Circle(Vector(-92.1, 53.7, 0), Vector(0, 0, 1), 1.9), False)
sketch13.addConstraint(Sketcher.Constraint("Equal", 0, 1))
sketch13.addConstraint(Sketcher.Constraint("Equal", 1, 2))
sketch13.addConstraint(Sketcher.Constraint("Equal", 2, 3))
sketch13.addConstraint(Sketcher.Constraint("Equal", 3, 4))
sketch13.addConstraint(Sketcher.Constraint("Equal", 4, 5))
sketch13.addConstraint(Sketcher.Constraint("Equal", 5, 6))
sketch13.addConstraint(Sketcher.Constraint("Equal", 6, 7))
sketch13.addConstraint(Sketcher.Constraint("Symmetric", 5, 3, 6, 3, -2))
sketch13.addConstraint(Sketcher.Constraint("Symmetric", 4, 3, 7, 3, -2))
sketch13.addConstraint(Sketcher.Constraint("Vertical", 4, 3, 5, 3))
sketch13.addConstraint(Sketcher.Constraint("Diameter", 0, Q("0.1495 in")))
sketch13.addConstraint(Sketcher.Constraint("DistanceX", 6, 3, 5, 3, Q("7.25 in")))
sketch13.addConstraint(Sketcher.Constraint("DistanceY", 2, 3, 0, 3, Q("0.001 in")))
sketch13.addConstraint(Sketcher.Constraint("DistanceX", 3, 3, 1, 3, Q("0.001 in")))
sketch13.addConstraint(Sketcher.Constraint("DistanceY", 2, 3, 4, 3, Q("0.303 in")))
sketch13.addConstraint(Sketcher.Constraint("DistanceY", 5, 3, 2, 3, Q("2.022 in")))
sketch13.addConstraint(Sketcher.Constraint("DistanceX", -1, 1, 1, 3, Q("0.4425 in")))
sketch13.addConstraint(Sketcher.Constraint("DistanceY", -1, 1, 0, 3, Q("45.9967 mm")))
sketch13.addConstraint(Sketcher.Constraint("DistanceX", 0, 3, -1, 1, Q("45.925717 mm")))
sketch13.addConstraint(Sketcher.Constraint("DistanceY", -1, 1, 1, 3, Q("103.136517 mm")))
sketch13.addConstraint(Sketcher.Constraint("DistanceX", -1, 1, 2, 3, Q("68.379317 mm")))
sketch13.addConstraint(Sketcher.Constraint("DistanceY", 3, 3, -1, 1, Q("11.168517 mm")))
doc.recompute()
hole4 = body.newObject("PartDesign::Hole", "Hole003")
hole4.Profile = sketch13
hole4.ThreadType = "None"
hole4.Diameter = Q("0.1495 in")
hole4.DepthType = "ThroughAll"

doc.recompute()
